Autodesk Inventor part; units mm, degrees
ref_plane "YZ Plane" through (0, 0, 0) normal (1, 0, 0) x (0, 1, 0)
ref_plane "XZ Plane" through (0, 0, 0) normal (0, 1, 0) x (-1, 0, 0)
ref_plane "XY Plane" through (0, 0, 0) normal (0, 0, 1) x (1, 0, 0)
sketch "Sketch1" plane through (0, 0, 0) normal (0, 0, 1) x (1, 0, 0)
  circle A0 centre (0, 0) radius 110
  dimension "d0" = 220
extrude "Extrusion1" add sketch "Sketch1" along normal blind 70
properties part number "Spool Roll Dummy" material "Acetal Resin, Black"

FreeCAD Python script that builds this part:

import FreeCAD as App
import Part
import Sketcher
from FreeCAD import Vector

doc = App.newDocument("Part")
body = doc.addObject("PartDesign::Body", "Body")

sketch1 = body.newObject("Sketcher::SketchObject", "Sketch")
sketch1.AttachmentSupport = (doc.getObject("XY_Plane"), [""])
sketch1.MapMode = "FlatFace"
sketch1.addGeometry(Part.Circle(Vector(0, 0, 0), Vector(0, 0, 1), 110), False)
sketch1.addConstraint([
    Sketcher.Constraint("Coincident", 0, 3, -1, 1),
    Sketcher.Constraint("Diameter", 0, 220.0),
])
pad1 = body.newObject("PartDesign::Pad", "Pad")
pad1.Profile = sketch1
pad1.Length = 70

doc.recompute()
